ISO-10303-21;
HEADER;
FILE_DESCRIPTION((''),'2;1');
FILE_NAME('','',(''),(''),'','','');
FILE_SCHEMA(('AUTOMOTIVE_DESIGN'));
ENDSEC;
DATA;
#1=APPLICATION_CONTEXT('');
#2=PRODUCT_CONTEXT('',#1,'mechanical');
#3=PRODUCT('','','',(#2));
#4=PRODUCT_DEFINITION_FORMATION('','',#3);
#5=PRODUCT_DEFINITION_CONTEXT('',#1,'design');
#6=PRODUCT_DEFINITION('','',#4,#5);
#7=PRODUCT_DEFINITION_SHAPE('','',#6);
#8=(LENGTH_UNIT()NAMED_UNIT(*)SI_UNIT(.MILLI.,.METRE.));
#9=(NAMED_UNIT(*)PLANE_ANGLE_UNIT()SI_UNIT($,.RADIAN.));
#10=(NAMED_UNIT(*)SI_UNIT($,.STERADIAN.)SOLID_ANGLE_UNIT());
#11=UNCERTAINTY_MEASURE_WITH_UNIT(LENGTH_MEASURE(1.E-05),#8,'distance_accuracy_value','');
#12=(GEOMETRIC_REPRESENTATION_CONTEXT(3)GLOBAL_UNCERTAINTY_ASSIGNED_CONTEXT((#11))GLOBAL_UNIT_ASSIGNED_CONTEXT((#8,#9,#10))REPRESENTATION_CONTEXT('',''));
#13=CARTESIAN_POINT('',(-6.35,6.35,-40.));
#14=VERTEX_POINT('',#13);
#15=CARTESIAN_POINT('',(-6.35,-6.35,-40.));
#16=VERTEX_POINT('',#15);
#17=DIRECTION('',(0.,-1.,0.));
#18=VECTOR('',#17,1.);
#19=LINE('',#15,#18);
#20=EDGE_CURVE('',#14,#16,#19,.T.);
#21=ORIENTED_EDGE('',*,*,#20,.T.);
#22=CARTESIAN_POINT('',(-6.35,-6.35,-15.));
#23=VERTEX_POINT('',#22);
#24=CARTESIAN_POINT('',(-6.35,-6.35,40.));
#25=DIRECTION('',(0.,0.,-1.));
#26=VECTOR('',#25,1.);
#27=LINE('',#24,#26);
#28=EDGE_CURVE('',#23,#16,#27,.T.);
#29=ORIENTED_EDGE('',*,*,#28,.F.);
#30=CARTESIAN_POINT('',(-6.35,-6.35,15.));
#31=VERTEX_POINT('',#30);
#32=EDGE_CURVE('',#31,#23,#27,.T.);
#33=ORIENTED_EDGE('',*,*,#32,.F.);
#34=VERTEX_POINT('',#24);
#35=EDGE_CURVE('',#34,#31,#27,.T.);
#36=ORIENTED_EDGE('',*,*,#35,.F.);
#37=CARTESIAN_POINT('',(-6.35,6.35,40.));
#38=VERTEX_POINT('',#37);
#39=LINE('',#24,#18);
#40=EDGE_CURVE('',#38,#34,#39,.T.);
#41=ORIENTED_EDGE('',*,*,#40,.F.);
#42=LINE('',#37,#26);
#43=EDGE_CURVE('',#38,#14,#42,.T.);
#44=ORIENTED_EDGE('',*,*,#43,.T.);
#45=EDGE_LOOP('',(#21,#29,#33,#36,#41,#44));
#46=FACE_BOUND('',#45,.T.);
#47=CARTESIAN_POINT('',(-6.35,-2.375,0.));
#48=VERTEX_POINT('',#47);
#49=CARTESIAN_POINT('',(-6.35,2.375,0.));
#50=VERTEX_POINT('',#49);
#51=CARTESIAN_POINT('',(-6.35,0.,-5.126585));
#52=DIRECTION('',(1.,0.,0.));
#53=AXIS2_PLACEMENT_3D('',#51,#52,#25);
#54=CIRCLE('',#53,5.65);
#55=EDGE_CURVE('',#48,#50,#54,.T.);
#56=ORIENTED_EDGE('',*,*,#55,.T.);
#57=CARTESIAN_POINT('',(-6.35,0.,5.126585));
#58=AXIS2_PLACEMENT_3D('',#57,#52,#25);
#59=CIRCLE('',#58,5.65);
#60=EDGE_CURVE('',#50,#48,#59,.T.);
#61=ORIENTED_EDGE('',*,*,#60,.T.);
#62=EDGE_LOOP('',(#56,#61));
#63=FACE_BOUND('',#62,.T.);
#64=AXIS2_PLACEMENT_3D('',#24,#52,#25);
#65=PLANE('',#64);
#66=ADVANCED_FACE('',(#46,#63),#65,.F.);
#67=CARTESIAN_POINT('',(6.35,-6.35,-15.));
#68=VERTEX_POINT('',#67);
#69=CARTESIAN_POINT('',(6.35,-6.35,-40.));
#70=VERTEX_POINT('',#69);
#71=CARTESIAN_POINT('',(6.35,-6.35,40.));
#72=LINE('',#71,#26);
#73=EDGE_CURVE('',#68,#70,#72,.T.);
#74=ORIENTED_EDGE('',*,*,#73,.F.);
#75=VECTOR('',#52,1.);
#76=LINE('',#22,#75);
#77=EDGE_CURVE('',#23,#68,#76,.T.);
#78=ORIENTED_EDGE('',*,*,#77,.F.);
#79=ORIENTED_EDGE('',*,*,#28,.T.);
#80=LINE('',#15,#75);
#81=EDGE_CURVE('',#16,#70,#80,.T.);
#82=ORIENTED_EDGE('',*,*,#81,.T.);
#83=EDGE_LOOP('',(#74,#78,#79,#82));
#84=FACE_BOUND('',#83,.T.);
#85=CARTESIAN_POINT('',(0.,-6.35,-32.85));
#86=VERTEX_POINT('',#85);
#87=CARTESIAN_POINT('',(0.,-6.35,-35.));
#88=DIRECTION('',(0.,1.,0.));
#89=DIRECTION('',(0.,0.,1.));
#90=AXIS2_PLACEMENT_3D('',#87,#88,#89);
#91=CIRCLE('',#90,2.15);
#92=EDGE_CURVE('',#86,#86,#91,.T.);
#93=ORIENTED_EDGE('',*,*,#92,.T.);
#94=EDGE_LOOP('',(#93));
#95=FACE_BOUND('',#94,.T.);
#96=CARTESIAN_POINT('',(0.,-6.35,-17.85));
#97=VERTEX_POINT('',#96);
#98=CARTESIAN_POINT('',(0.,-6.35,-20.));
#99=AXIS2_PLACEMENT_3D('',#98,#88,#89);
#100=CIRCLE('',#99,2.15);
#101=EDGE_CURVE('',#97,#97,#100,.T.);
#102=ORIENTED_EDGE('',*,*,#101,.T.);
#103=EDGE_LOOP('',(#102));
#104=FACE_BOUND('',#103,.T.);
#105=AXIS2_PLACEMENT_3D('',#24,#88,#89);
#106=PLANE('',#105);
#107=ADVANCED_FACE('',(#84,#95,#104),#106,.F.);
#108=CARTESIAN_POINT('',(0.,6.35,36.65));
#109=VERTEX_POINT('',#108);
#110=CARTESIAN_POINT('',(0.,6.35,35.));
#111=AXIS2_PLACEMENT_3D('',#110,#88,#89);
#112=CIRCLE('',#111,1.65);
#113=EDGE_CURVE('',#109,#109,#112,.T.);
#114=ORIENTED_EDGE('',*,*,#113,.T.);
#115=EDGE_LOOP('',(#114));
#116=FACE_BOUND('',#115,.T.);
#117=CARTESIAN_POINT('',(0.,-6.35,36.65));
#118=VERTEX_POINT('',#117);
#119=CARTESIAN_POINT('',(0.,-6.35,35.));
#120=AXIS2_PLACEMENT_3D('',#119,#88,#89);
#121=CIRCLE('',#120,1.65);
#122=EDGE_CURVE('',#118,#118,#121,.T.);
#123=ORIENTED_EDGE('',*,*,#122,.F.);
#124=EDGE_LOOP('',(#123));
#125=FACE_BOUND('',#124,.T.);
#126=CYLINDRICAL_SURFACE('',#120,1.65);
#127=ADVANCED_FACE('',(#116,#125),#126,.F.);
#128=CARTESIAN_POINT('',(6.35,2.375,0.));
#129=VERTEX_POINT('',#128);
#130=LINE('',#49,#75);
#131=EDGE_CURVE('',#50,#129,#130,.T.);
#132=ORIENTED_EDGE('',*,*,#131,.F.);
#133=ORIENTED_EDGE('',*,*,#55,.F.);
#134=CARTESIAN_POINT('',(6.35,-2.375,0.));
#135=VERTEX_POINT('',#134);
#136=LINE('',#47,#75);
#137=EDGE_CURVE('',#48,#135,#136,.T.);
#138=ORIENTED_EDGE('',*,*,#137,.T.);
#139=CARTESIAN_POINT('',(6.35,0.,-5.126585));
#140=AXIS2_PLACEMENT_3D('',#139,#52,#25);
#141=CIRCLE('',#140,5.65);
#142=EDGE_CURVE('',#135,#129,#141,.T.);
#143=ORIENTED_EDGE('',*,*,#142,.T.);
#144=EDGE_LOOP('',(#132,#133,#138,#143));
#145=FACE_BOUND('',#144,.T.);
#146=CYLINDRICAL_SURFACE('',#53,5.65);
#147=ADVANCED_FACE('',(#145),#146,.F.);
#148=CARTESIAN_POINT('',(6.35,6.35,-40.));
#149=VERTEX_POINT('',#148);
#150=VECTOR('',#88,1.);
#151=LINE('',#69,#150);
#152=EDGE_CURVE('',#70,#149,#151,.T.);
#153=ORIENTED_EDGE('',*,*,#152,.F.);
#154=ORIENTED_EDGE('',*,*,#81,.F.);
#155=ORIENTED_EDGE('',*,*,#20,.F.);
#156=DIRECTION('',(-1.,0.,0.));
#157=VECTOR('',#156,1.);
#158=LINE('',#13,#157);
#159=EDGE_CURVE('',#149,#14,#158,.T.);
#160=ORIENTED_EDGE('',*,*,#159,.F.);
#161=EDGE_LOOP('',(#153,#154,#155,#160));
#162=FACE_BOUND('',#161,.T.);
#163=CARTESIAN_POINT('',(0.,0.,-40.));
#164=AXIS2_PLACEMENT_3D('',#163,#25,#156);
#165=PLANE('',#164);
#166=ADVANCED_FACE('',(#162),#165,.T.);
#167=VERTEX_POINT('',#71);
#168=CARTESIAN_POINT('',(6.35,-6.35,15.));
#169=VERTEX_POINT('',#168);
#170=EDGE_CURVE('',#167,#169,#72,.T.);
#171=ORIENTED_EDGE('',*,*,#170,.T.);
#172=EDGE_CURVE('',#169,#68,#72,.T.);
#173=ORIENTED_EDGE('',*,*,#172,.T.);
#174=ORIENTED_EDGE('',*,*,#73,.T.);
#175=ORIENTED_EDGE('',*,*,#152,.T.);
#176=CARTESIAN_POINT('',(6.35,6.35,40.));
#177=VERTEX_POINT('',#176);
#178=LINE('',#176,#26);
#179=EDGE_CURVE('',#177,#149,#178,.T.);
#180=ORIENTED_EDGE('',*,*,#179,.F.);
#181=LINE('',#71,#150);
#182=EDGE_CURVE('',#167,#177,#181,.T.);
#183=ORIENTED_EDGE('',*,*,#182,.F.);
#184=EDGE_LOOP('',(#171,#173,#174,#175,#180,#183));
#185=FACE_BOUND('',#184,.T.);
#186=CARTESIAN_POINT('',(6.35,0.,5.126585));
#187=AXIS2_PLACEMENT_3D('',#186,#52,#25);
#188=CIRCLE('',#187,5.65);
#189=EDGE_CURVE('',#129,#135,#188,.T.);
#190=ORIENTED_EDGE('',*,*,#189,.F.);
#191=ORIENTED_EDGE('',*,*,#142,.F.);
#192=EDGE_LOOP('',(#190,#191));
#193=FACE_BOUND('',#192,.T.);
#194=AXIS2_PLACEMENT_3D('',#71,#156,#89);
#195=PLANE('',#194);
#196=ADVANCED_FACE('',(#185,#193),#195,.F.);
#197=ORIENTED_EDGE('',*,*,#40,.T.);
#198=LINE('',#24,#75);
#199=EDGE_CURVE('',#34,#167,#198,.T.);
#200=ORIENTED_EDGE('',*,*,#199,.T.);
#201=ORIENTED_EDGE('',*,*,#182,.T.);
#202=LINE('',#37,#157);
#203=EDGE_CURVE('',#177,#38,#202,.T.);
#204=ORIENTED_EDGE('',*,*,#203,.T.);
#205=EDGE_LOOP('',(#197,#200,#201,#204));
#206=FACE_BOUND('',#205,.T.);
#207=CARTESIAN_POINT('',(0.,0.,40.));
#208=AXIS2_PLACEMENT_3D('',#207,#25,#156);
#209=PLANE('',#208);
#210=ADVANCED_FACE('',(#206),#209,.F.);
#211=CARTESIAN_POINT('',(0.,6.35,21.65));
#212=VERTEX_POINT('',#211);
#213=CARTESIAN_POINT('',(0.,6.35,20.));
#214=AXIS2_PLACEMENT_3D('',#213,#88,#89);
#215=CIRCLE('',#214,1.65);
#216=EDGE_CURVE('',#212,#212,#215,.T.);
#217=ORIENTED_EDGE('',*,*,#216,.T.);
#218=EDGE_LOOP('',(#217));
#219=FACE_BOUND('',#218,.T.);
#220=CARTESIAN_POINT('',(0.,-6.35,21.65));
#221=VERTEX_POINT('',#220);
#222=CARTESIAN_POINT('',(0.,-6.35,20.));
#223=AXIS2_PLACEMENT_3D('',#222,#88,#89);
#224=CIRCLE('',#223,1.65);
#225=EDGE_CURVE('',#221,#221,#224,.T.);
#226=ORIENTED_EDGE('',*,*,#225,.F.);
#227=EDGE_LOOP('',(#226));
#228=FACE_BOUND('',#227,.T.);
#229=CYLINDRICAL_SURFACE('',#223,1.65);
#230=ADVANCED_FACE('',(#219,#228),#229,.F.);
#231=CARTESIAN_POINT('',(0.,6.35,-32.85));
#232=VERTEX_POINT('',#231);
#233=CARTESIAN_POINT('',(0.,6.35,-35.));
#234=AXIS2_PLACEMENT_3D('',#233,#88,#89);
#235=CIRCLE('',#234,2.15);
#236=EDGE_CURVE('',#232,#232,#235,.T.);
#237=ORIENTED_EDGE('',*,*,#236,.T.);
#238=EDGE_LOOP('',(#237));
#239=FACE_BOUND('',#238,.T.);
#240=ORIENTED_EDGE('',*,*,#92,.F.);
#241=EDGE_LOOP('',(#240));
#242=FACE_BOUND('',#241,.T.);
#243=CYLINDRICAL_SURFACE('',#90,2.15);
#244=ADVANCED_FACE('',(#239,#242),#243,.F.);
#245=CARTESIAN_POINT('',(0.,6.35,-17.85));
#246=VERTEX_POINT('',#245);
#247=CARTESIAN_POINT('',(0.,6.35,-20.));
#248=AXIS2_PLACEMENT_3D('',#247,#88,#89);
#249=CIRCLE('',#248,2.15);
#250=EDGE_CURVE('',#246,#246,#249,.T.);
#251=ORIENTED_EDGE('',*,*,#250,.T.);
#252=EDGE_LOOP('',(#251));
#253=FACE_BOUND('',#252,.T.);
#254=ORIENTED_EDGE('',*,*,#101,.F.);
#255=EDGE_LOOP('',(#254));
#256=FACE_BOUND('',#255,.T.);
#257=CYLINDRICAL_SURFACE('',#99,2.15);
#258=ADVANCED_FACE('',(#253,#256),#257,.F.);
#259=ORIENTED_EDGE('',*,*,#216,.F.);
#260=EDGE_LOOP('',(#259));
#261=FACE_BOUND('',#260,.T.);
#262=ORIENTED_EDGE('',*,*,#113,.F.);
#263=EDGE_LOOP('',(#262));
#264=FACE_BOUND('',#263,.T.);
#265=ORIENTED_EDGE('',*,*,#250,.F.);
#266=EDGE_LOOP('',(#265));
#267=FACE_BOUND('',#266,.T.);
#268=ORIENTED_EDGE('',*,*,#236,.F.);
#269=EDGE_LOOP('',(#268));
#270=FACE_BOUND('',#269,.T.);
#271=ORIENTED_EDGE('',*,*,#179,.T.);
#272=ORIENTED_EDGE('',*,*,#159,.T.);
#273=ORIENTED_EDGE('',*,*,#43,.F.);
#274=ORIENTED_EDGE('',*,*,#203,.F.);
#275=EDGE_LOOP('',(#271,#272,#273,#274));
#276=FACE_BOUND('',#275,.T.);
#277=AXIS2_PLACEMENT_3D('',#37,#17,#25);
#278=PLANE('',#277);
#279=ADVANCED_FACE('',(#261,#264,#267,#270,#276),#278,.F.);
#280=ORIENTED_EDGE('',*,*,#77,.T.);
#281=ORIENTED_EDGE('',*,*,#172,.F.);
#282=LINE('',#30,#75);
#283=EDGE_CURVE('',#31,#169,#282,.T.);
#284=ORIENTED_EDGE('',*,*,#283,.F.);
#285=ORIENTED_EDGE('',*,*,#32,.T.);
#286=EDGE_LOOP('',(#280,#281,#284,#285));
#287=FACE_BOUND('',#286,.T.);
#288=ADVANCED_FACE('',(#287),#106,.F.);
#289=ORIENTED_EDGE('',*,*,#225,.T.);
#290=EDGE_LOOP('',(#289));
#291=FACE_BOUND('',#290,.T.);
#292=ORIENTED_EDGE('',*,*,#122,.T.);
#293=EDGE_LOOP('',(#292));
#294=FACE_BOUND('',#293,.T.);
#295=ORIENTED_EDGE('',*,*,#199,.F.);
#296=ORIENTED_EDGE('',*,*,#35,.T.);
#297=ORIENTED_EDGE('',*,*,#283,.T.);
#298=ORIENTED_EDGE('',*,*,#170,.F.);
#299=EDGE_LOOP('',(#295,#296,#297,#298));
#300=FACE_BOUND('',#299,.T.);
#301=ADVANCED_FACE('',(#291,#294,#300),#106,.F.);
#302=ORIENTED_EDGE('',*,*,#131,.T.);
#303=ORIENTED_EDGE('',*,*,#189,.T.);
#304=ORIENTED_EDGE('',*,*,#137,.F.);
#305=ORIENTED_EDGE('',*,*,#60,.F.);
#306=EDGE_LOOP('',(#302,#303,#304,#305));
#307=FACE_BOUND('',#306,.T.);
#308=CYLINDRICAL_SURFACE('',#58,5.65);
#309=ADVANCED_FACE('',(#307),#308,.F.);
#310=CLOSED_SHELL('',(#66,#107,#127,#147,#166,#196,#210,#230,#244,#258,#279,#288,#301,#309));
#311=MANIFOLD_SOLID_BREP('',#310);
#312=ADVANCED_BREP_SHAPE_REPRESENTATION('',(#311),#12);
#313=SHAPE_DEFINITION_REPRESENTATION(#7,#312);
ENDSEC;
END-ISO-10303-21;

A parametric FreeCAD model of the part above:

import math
import FreeCAD as App
import Part
import Sketcher


def add_polygon(sketch, points):
    """Adds a closed chain of lines whose ends are joined by coincident constraints."""
    first, n = sketch.GeometryCount, len(points)
    for a, b in zip(points, points[1:] + points[:1]):
        sketch.addGeometry(Part.LineSegment(App.Vector(*a, 0), App.Vector(*b, 0)), False)
    for i in range(n):
        sketch.addConstraint(Sketcher.Constraint("Coincident", first + i, 2, first + (i + 1) % n, 1))

doc = App.newDocument("Part")
body = doc.addObject("PartDesign::Body", "Body")

# Sketch on XY plane
sketch1 = body.newObject("Sketcher::SketchObject", "Sketch")
sketch1.AttachmentSupport = (doc.getObject("XY_Plane"), [""])
sketch1.MapMode = "FlatFace"
add_polygon(sketch1, [(-6, 6), (-6, -6), (6, -6), (6, 6)])  # lines 0-3
sketch1.addConstraint([
    Sketcher.Constraint("Vertical", 0),
    Sketcher.Constraint("Horizontal", 1),
    Sketcher.Constraint("Vertical", 2),
    Sketcher.Constraint("Horizontal", 3),
    Sketcher.Constraint("Symmetric", 0, 2, 2, 2, -1, 1),
    Sketcher.Constraint("Equal", 3, 0),
    Sketcher.Constraint("DistanceX", 1, 1, 1, 2, 12.7),
])
pad1 = body.newObject("PartDesign::Pad", "Pad")
pad1.Profile = sketch1
pad1.Length = 80
pad1.Midplane = True

# Sketch on YZ plane
sketch2 = body.newObject("Sketcher::SketchObject", "Sketch001")
sketch2.AttachmentSupport = (doc.getObject("YZ_Plane"), [""])
sketch2.MapMode = "FlatFace"
sketch2.AttachmentOffset = App.Placement(App.Vector(0, 0, 6.35), App.Rotation())
sketch2.addGeometry([
    Part.ArcOfCircle(Part.Circle(App.Vector(0, 5.1, 0), App.Vector(0, 0, 1), 5.7), math.radians(-65), math.radians(245)),
    Part.ArcOfCircle(Part.Circle(App.Vector(0, -5.1, 0), App.Vector(0, 0, 1), 5.7), math.radians(115), math.radians(425)),
], False)
sketch2.addConstraint([
    Sketcher.Constraint("Coincident", 0, 1, 1, 2),
    Sketcher.Constraint("Coincident", 1, 1, 0, 2),
    Sketcher.Constraint("Equal", 0, 1),
    Sketcher.Constraint("Symmetric", 0, 3, 1, 3, -1, 1),
    Sketcher.Constraint("PointOnObject", 0, 3, -2),
    Sketcher.Constraint("Radius", 0, 5.65),
    Sketcher.Constraint("DistanceX", 1, 1, 0, 1, 4.75),
])
pocket1 = body.newObject("PartDesign::Pocket", "Pocket")
pocket1.Profile = sketch2
pocket1.Type = "ThroughAll"

# Sketch on XZ plane
sketch3 = body.newObject("Sketcher::SketchObject", "Sketch002")
sketch3.AttachmentSupport = (doc.getObject("XZ_Plane"), [""])
sketch3.MapMode = "FlatFace"
sketch3.AttachmentOffset = App.Placement(App.Vector(0, 0, -6.35), App.Rotation())
sketch3.addGeometry([
    Part.Circle(App.Vector(0, -35, 0), App.Vector(0, 0, 1), 2.1),
    Part.Circle(App.Vector(0, -20, 0), App.Vector(0, 0, 1), 2.1),
], False)
sketch3.addConstraint([
    Sketcher.Constraint("Equal", 0, 1),
    Sketcher.Constraint("PointOnObject", 0, 3, -2),
    Sketcher.Constraint("PointOnObject", 1, 3, -2),
    Sketcher.Constraint("Diameter", 0, 4.3),
    Sketcher.Constraint("DistanceY", 0, 3, -1, 1, 35.0),
    Sketcher.Constraint("DistanceY", 1, 3, -1, 1, 20.0),
])
pocket2 = body.newObject("PartDesign::Pocket", "Pocket001")
pocket2.Profile = sketch3
pocket2.Type = "ThroughAll"
pocket2.Reversed = True

# Sketch on XZ plane
sketch4 = body.newObject("Sketcher::SketchObject", "Sketch003")
sketch4.AttachmentSupport = (doc.getObject("XZ_Plane"), [""])
sketch4.MapMode = "FlatFace"
sketch4.AttachmentOffset = App.Placement(App.Vector(0, 0, -6.35), App.Rotation())
sketch4.addGeometry([
    Part.Circle(App.Vector(0, 35, 0), App.Vector(0, 0, 1), 1.6),
    Part.Circle(App.Vector(0, 20, 0), App.Vector(0, 0, 1), 1.6),
], False)
sketch4.addConstraint([
    Sketcher.Constraint("Equal", 0, 1),
    Sketcher.Constraint("PointOnObject", 0, 3, -2),
    Sketcher.Constraint("PointOnObject", 1, 3, -2),
    Sketcher.Constraint("Diameter", 0, 3.3),
    Sketcher.Constraint("DistanceY", -1, 1, 0, 3, 35.0),
    Sketcher.Constraint("DistanceY", -1, 1, 1, 3, 20.0),
])
pocket3 = body.newObject("PartDesign::Pocket", "Pocket002")
pocket3.Profile = sketch4
pocket3.Type = "ThroughAll"
pocket3.Reversed = True

doc.recompute()
